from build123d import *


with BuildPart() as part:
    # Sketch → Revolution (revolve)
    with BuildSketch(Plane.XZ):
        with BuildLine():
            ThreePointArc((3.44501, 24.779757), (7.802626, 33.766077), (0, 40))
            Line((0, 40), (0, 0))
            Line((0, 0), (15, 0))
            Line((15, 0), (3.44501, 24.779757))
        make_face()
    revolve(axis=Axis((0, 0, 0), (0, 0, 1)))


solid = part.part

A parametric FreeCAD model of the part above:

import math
import FreeCAD as App
import Part
import Sketcher
Q = App.Units.Quantity

doc = App.newDocument("Part")
params = doc.addObject("Spreadsheet::Sheet", "Params")
for row, (alias, value) in enumerate([
    ("sketch1_radius", "8 mm"),
    ("sketch1_width", "15 mm"),
    ("sketch1_height", "40 mm"),
    ("revolution_angle", "360 deg"),
], start=1):
    params.set(f"A{row}", alias)
    params.set(f"B{row}", "=" + value)
    params.setAlias(f"B{row}", alias)

body = doc.addObject("PartDesign::Body", "Body")

# Sketch on XZ plane
sketch1 = body.newObject("Sketcher::SketchObject", "Sketch")
sketch1.AttachmentSupport = (doc.getObject("XZ_Plane"), [""])
sketch1.MapMode = "FlatFace"
sketch1.addGeometry([
    Part.ArcOfCircle(Part.Circle(App.Vector(0, 32, 0), App.Vector(0, 0, 1), 8), math.radians(-64.49269), math.radians(90)),
    Part.LineSegment(App.Vector(0, 40, 0), App.Vector(0, 0, 0)),
    Part.LineSegment(App.Vector(0, 0, 0), App.Vector(15, 0, 0)),
    Part.LineSegment(App.Vector(15, 0, 0), App.Vector(3.44501, 24.779757, 0)),
], False)
sketch1.addConstraint([
    Sketcher.Constraint("Coincident", 0, 2, 1, 1),
    Sketcher.Constraint("Coincident", 1, 2, 2, 1),
    Sketcher.Constraint("Coincident", 2, 2, 3, 1),
    Sketcher.Constraint("Coincident", 3, 2, 0, 1),
    Sketcher.Constraint("Vertical", 1),
    Sketcher.Constraint("Horizontal", 2),
    Sketcher.Constraint("Coincident", 1, 2, -1, 1),
    Sketcher.Constraint("PointOnObject", 0, 3, -2),
    Sketcher.Constraint("Radius", 0, Q("8 mm")),
    Sketcher.Constraint("DistanceX", 2, 1, 2, 2, Q("15 mm")),
    Sketcher.Constraint("DistanceY", 1, 2, 1, 1, Q("40 mm")),
    Sketcher.Constraint("Angle", 3, Q("114.999999 deg")),
])
sketch1.setExpression("Constraints[8]", "Params.sketch1_radius")
sketch1.setExpression("Constraints[9]", "Params.sketch1_width")
sketch1.setExpression("Constraints[10]", "Params.sketch1_height")
revolution = body.newObject("PartDesign::Revolution", "Revolution")
revolution.Profile = sketch1
revolution.ReferenceAxis = (sketch1, ["V_Axis"])
revolution.setExpression("Angle", "Params.revolution_angle")

doc.recompute()
